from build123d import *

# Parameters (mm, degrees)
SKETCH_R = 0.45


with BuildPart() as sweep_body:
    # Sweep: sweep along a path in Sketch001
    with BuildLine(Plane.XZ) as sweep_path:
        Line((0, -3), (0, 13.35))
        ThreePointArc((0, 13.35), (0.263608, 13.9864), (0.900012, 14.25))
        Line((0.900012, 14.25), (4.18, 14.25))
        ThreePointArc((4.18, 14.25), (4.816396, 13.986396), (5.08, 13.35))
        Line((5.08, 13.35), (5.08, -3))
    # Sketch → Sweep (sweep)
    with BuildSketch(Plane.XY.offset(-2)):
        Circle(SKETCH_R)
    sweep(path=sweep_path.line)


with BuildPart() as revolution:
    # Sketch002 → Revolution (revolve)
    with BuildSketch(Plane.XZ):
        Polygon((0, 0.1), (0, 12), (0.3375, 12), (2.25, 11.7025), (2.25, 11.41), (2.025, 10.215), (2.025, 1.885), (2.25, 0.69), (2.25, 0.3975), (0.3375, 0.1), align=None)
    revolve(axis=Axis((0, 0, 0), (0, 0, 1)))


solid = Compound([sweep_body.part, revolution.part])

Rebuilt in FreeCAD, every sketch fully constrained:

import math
import FreeCAD as App
import Part
import Sketcher
Q = App.Units.Quantity

doc = App.newDocument("Part")
body = doc.addObject("PartDesign::Body", "Body")

sketch1 = body.newObject("Sketcher::SketchObject", "Sketch")
sketch1.AttachmentSupport = (doc.getObject("XY_Plane"), [""])
sketch1.MapMode = "FlatFace"
sketch1.AttachmentOffset = App.Placement(App.Vector(0, 0, -2), App.Rotation())
sketch1.addGeometry(Part.Circle(App.Vector(0, 0, 0), App.Vector(0, 0, 1), 0.45), False)
sketch1.addConstraint(Sketcher.Constraint("Coincident", 0, 3, -1, 1))
sketch1.addConstraint(Sketcher.Constraint("Diameter", 0, Q("0.9 mm")))

sketch2 = body.newObject("Sketcher::SketchObject", "Sketch001")
sketch2.AttachmentSupport = (doc.getObject("XZ_Plane"), [""])
sketch2.MapMode = "FlatFace"
sketch2.addGeometry(Part.LineSegment(App.Vector(0, -3, 0), App.Vector(0, 13.35, 0)), False)
sketch2.addGeometry(Part.ArcOfCircle(Part.Circle(App.Vector(0.9, 13.35, 0), App.Vector(0, 0, 1), 0.9), math.radians(89.999258), math.radians(179.999978)), False)
sketch2.addGeometry(Part.LineSegment(App.Vector(0.900012, 14.25, 0), App.Vector(4.18, 14.25, 0)), False)
sketch2.addGeometry(Part.ArcOfCircle(Part.Circle(App.Vector(4.18, 13.35, 0), App.Vector(0, 0, 1), 0.9), math.radians(0.000022), math.radians(89.999978)), False)
sketch2.addGeometry(Part.LineSegment(App.Vector(5.08, 13.35, 0), App.Vector(5.08, -3, 0)), False)
sketch2.addConstraint(Sketcher.Constraint("Tangent", 0, 2, 1, 2))
sketch2.addConstraint(Sketcher.Constraint("Coincident", 1, 1, 2, 1))
sketch2.addConstraint(Sketcher.Constraint("Tangent", 2, 2, 3, 2))
sketch2.addConstraint(Sketcher.Constraint("Tangent", 3, 1, 4, 1))
sketch2.addConstraint(Sketcher.Constraint("Vertical", 0))
sketch2.addConstraint(Sketcher.Constraint("Horizontal", 2))
sketch2.addConstraint(Sketcher.Constraint("Vertical", 4))
sketch2.addConstraint(Sketcher.Constraint("Equal", 1, 3))
sketch2.addConstraint(Sketcher.Constraint("PointOnObject", 0, 1, -2))
sketch2.addConstraint(Sketcher.Constraint("Horizontal", 0, 1, 4, 2))
sketch2.addConstraint(Sketcher.Constraint("Radius", 1, Q("0.9 mm")))
sketch2.addConstraint(Sketcher.Constraint("DistanceY", 0, 1, -1, 1, Q("3 mm")))
sketch2.addConstraint(Sketcher.Constraint("DistanceY", 0, 1, 0, 2, Q("16.35 mm")))
sketch2.addConstraint(Sketcher.Constraint("DistanceX", -1, 1, 3, 3, Q("4.18 mm")))
sketch2.addConstraint(Sketcher.Constraint("DistanceX", 2, 1, 2, 2, Q("3.279988 mm")))
doc.recompute()

additivepipe = body.newObject("PartDesign::AdditivePipe", "AdditivePipe")
additivepipe.Profile = sketch1
additivepipe.Spine = (sketch2, ["Edge1", "Edge2", "Edge3", "Edge4", "Edge5"])
body2 = doc.addObject("PartDesign::Body", "Body001")

sketch3 = body2.newObject("Sketcher::SketchObject", "Sketch002")
sketch3.AttachmentSupport = (doc.getObject("XZ_Plane001"), [""])
sketch3.MapMode = "FlatFace"
sketch3.addGeometry(Part.LineSegment(App.Vector(0, 12, 0), App.Vector(0, 0.1, 0)), False)
sketch3.addGeometry(Part.LineSegment(App.Vector(0, 0.1, 0), App.Vector(0.3375, 0.1, 0)), False)
sketch3.addGeometry(Part.LineSegment(App.Vector(0.3375, 0.1, 0), App.Vector(2.25, 0.3975, 0)), False)
sketch3.addGeometry(Part.LineSegment(App.Vector(2.25, 0.3975, 0), App.Vector(2.25, 0.69, 0)), False)
sketch3.addGeometry(Part.LineSegment(App.Vector(2.25, 0.69, 0), App.Vector(2.025, 1.885, 0)), False)
sketch3.addGeometry(Part.LineSegment(App.Vector(2.025, 1.885, 0), App.Vector(2.025, 10.215, 0)), False)
sketch3.addGeometry(Part.LineSegment(App.Vector(2.025, 10.215, 0), App.Vector(2.25, 11.41, 0)), False)
sketch3.addGeometry(Part.LineSegment(App.Vector(2.25, 11.41, 0), App.Vector(2.25, 11.7025, 0)), False)
sketch3.addGeometry(Part.LineSegment(App.Vector(2.25, 11.7025, 0), App.Vector(0.3375, 12, 0)), False)
sketch3.addGeometry(Part.LineSegment(App.Vector(0.3375, 12, 0), App.Vector(0, 12, 0)), False)
sketch3.addConstraint(Sketcher.Constraint("Coincident", 0, 2, 1, 1))
sketch3.addConstraint(Sketcher.Constraint("Coincident", 1, 2, 2, 1))
sketch3.addConstraint(Sketcher.Constraint("Coincident", 2, 2, 3, 1))
sketch3.addConstraint(Sketcher.Constraint("Coincident", 3, 2, 4, 1))
sketch3.addConstraint(Sketcher.Constraint("Coincident", 4, 2, 5, 1))
sketch3.addConstraint(Sketcher.Constraint("Coincident", 5, 2, 6, 1))
sketch3.addConstraint(Sketcher.Constraint("Coincident", 6, 2, 7, 1))
sketch3.addConstraint(Sketcher.Constraint("Coincident", 7, 2, 8, 1))
sketch3.addConstraint(Sketcher.Constraint("Coincident", 8, 2, 9, 1))
sketch3.addConstraint(Sketcher.Constraint("Coincident", 9, 2, 0, 1))
sketch3.addConstraint(Sketcher.Constraint("Vertical", 0))
sketch3.addConstraint(Sketcher.Constraint("Horizontal", 1))
sketch3.addConstraint(Sketcher.Constraint("Vertical", 3))
sketch3.addConstraint(Sketcher.Constraint("Vertical", 5))
sketch3.addConstraint(Sketcher.Constraint("Vertical", 7))
sketch3.addConstraint(Sketcher.Constraint("Horizontal", 9))
sketch3.addConstraint(Sketcher.Constraint("PointOnObject", 0, 2, -2))
sketch3.addConstraint(Sketcher.Constraint("Vertical", 3, 2, 6, 2))
sketch3.addConstraint(Sketcher.Constraint("Vertical", 1, 2, 8, 2))
sketch3.addConstraint(Sketcher.Constraint("Equal", 3, 7))
sketch3.addConstraint(Sketcher.Constraint("Equal", 4, 6))
sketch3.addConstraint(Sketcher.Constraint("Equal", 2, 8))
sketch3.addConstraint(Sketcher.Constraint("DistanceY", 0, 2, 0, 1, Q("11.9 mm")))
sketch3.addConstraint(Sketcher.Constraint("DistanceY", -1, 1, 8, 2, Q("12 mm")))
sketch3.addConstraint(Sketcher.Constraint("DistanceY", 5, 1, 5, 2, Q("8.33 mm")))
sketch3.addConstraint(Sketcher.Constraint("DistanceX", -1, 1, 2, 2, Q("2.25 mm")))
sketch3.addConstraint(Sketcher.Constraint("DistanceY", -1, 1, 3, 2, Q("0.69 mm")))
sketch3.addConstraint(Sketcher.Constraint("DistanceX", 1, 1, 1, 2, Q("0.3375 mm")))
sketch3.addConstraint(Sketcher.Constraint("DistanceY", 3, 1, 3, 2, Q("0.2925 mm")))
sketch3.addConstraint(Sketcher.Constraint("DistanceX", -1, 1, 4, 2, Q("2.025 mm")))
revolution = body2.newObject("PartDesign::Revolution", "Revolution")
revolution.Profile = sketch3
revolution.ReferenceAxis = (sketch3, ["V_Axis"])
revolution.Angle = 360

doc.recompute()
